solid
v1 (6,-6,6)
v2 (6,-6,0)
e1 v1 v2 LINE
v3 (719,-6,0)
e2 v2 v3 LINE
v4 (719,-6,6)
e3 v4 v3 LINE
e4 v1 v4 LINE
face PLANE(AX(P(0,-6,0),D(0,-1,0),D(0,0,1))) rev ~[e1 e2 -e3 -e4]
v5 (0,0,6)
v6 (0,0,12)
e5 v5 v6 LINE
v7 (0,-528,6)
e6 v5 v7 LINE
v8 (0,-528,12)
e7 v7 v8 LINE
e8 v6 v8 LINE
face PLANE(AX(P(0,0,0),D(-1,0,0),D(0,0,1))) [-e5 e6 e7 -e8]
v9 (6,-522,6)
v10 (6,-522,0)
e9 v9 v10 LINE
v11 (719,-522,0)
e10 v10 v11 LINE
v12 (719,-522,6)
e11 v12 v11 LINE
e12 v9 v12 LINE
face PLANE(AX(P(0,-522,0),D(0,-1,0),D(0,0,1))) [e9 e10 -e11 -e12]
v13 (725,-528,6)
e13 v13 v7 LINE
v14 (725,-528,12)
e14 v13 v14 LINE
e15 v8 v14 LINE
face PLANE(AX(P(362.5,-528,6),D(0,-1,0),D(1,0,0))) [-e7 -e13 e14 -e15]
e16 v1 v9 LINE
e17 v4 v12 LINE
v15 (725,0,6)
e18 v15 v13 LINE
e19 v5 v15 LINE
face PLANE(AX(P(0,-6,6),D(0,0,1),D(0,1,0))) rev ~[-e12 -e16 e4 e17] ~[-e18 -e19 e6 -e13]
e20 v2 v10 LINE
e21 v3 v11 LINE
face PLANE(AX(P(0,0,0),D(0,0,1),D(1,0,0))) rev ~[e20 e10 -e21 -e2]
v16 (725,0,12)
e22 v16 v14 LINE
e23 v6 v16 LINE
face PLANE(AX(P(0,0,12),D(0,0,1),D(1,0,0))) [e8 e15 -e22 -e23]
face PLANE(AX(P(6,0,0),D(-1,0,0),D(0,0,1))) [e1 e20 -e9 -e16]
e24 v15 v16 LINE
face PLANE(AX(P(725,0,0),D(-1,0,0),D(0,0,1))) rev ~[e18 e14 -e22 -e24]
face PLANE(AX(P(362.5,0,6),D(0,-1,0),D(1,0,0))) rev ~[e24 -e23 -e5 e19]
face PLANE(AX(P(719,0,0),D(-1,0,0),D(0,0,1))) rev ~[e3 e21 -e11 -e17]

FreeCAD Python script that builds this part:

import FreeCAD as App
import Part
import Sketcher

V = App.Vector
Q = App.Units.Quantity

doc = App.newDocument("Part")
body = doc.addObject("PartDesign::Body", "Body")

sketch1 = body.newObject("Sketcher::SketchObject", "Sketch")
sketch1.AttachmentSupport = (doc.getObject("XZ_Plane"), [""])
sketch1.MapMode = "FlatFace"
sketch1.addGeometry([
    Part.LineSegment(V(0, 12, 0), V(0, 0, 0)),
    Part.LineSegment(V(0, 0, 0), V(725, 0, 0)),
    Part.LineSegment(V(725, 0, 0), V(725, 12, 0)),
    Part.LineSegment(V(725, 12, 0), V(0, 12, 0)),
], False)
sketch1.addConstraint([
    Sketcher.Constraint("Coincident", 0, 2, 1, 1),
    Sketcher.Constraint("Coincident", 1, 2, 2, 1),
    Sketcher.Constraint("Coincident", 2, 2, 3, 1),
    Sketcher.Constraint("Coincident", 3, 2, 0, 1),
    Sketcher.Constraint("Vertical", 0),
    Sketcher.Constraint("Horizontal", 1),
    Sketcher.Constraint("Vertical", 2),
    Sketcher.Constraint("Horizontal", 3),
    Sketcher.Constraint("Coincident", 0, 2, -1, 1),
    Sketcher.Constraint("DistanceX", 1, 1, 1, 2, Q("725 mm")),
    Sketcher.Constraint("DistanceY", 0, 2, 0, 1, Q("12 mm")),
])
pad1 = body.newObject("PartDesign::Pad", "Pad")
pad1.Profile = sketch1
pad1.Length = 528

sketch2 = body.newObject("Sketcher::SketchObject", "Sketch001")
sketch2.AttachmentSupport = (doc.getObject("YZ_Plane"), [""])
sketch2.MapMode = "FlatFace"
sketch2.addGeometry([
    Part.LineSegment(V(-528, 6, 0), V(-528, 0, 0)),
    Part.LineSegment(V(-528, 0, 0), V(-522, 0, 0)),
    Part.LineSegment(V(-522, 0, 0), V(-522, 6, 0)),
    Part.LineSegment(V(-522, 6, 0), V(-528, 6, 0)),
    Part.LineSegment(V(-6, 6, 0), V(-6, 0, 0)),
    Part.LineSegment(V(-6, 0, 0), V(0, 0, 0)),
    Part.LineSegment(V(0, 0, 0), V(0, 6, 0)),
    Part.LineSegment(V(0, 6, 0), V(-6, 6, 0)),
], False)
sketch2.addConstraint([
    Sketcher.Constraint("Coincident", 0, 2, 1, 1),
    Sketcher.Constraint("Coincident", 1, 2, 2, 1),
    Sketcher.Constraint("Coincident", 2, 2, 3, 1),
    Sketcher.Constraint("Coincident", 3, 2, 0, 1),
    Sketcher.Constraint("Coincident", 4, 2, 5, 1),
    Sketcher.Constraint("Coincident", 5, 2, 6, 1),
    Sketcher.Constraint("Coincident", 6, 2, 7, 1),
    Sketcher.Constraint("Coincident", 7, 2, 4, 1),
    Sketcher.Constraint("Vertical", 0),
    Sketcher.Constraint("Horizontal", 1),
    Sketcher.Constraint("Vertical", 2),
    Sketcher.Constraint("Horizontal", 3),
    Sketcher.Constraint("Vertical", 4),
    Sketcher.Constraint("Horizontal", 5),
    Sketcher.Constraint("Vertical", 6),
    Sketcher.Constraint("Horizontal", 7),
    Sketcher.Constraint("Coincident", 5, 2, -1, 1),
    Sketcher.Constraint("PointOnObject", 0, 2, -1),
    Sketcher.Constraint("Horizontal", 3, 2, 6, 2),
    Sketcher.Constraint("Equal", 3, 5),
    Sketcher.Constraint("Equal", 7, 0),
    Sketcher.Constraint("DistanceX", 1, 1, 1, 2, Q("6 mm")),
    Sketcher.Constraint("DistanceX", 0, 2, -1, 1, Q("528 mm")),
])
pocket1 = body.newObject("PartDesign::Pocket", "Pocket")
pocket1.Profile = sketch2
pocket1.Type = "ThroughAll"
pocket1.Reversed = True

sketch3 = body.newObject("Sketcher::SketchObject", "Sketch002")
sketch3.AttachmentSupport = (doc.getObject("XZ_Plane"), [""])
sketch3.MapMode = "FlatFace"
sketch3.addGeometry([
    Part.LineSegment(V(0, 6, 0), V(0, 0, 0)),
    Part.LineSegment(V(0, 0, 0), V(6, 0, 0)),
    Part.LineSegment(V(6, 0, 0), V(6, 6, 0)),
    Part.LineSegment(V(6, 6, 0), V(0, 6, 0)),
    Part.LineSegment(V(719, 6, 0), V(719, 0, 0)),
    Part.LineSegment(V(719, 0, 0), V(725, 0, 0)),
    Part.LineSegment(V(725, 0, 0), V(725, 6, 0)),
    Part.LineSegment(V(725, 6, 0), V(719, 6, 0)),
], False)
sketch3.addConstraint([
    Sketcher.Constraint("Coincident", 0, 2, 1, 1),
    Sketcher.Constraint("Coincident", 1, 2, 2, 1),
    Sketcher.Constraint("Coincident", 2, 2, 3, 1),
    Sketcher.Constraint("Coincident", 3, 2, 0, 1),
    Sketcher.Constraint("Coincident", 4, 2, 5, 1),
    Sketcher.Constraint("Coincident", 5, 2, 6, 1),
    Sketcher.Constraint("Coincident", 6, 2, 7, 1),
    Sketcher.Constraint("Coincident", 7, 2, 4, 1),
    Sketcher.Constraint("Vertical", 0),
    Sketcher.Constraint("Horizontal", 1),
    Sketcher.Constraint("Vertical", 2),
    Sketcher.Constraint("Horizontal", 3),
    Sketcher.Constraint("Vertical", 4),
    Sketcher.Constraint("Horizontal", 5),
    Sketcher.Constraint("Vertical", 6),
    Sketcher.Constraint("Horizontal", 7),
    Sketcher.Constraint("Coincident", 0, 2, -1, 1),
    Sketcher.Constraint("PointOnObject", 4, 2, -1),
    Sketcher.Constraint("Horizontal", 3, 2, 6, 2),
    Sketcher.Constraint("Equal", 3, 5),
    Sketcher.Constraint("Equal", 7, 0),
    Sketcher.Constraint("DistanceX", 1, 1, 1, 2, Q("6 mm")),
    Sketcher.Constraint("DistanceX", -1, 1, 4, 2, Q("719 mm")),
])
pocket2 = body.newObject("PartDesign::Pocket", "Pocket001")
pocket2.Profile = sketch3
pocket2.Type = "ThroughAll"
pocket2.Reversed = True

doc.recompute()
